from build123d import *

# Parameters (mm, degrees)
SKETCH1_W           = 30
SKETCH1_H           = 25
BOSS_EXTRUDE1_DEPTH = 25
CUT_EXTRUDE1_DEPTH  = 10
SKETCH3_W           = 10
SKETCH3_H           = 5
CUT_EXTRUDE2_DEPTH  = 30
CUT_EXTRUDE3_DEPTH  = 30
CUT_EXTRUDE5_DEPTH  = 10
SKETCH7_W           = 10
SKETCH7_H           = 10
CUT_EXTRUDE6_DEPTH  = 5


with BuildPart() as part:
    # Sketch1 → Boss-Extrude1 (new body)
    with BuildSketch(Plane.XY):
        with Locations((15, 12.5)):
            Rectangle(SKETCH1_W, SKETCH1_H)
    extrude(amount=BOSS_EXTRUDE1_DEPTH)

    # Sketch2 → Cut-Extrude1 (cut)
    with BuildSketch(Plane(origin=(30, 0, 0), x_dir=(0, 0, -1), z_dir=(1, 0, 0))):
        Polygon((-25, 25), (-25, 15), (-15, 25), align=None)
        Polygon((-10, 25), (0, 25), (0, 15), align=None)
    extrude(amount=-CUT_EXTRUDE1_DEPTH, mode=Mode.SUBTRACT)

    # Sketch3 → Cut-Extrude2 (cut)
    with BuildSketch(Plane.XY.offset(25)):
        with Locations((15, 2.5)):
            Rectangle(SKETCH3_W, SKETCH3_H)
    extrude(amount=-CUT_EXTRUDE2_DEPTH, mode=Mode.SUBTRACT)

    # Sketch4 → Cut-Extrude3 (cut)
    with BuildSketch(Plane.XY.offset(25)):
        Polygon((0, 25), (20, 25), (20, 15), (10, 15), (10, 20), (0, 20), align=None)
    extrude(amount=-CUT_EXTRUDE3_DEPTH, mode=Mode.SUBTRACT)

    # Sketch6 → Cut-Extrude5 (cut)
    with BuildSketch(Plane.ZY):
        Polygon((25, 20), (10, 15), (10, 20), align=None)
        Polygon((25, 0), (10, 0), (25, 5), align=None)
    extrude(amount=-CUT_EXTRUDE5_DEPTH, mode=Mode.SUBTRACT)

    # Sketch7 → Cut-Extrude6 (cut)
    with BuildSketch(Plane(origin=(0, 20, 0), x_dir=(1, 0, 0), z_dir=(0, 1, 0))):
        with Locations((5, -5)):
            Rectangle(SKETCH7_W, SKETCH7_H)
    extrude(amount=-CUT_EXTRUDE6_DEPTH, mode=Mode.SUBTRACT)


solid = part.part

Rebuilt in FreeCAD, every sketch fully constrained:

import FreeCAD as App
import Part
import Sketcher

V = App.Vector


def add_polygon(sketch, points):
    """Adds a closed chain of lines whose ends are joined by coincident constraints."""
    first, n = sketch.GeometryCount, len(points)
    for a, b in zip(points, points[1:] + points[:1]):
        sketch.addGeometry(Part.LineSegment(App.Vector(*a, 0), App.Vector(*b, 0)), False)
    for i in range(n):
        sketch.addConstraint(Sketcher.Constraint("Coincident", first + i, 2, first + (i + 1) % n, 1))

doc = App.newDocument("Part")
params = doc.addObject("Spreadsheet::Sheet", "Params")
for row, (alias, value) in enumerate([
    ("sketch1_width", "30 mm"),
    ("sketch1_height", "25 mm"),
    ("pad1_length", "25 mm"),
    ("sketch2_width", "10 mm"),
    ("pocket1_length", "10 mm"),
    ("sketch3_width", "10 mm"),
    ("sketch3_height", "5 mm"),
    ("pocket2_length", "30 mm"),
    ("sketch4_width", "20 mm"),
    ("pocket3_length", "30 mm"),
    ("sketch5_width", "5 mm"),
    ("sketch5_height", "15 mm"),
    ("pocket4_length", "10 mm"),
    ("sketch6_width", "10 mm"),
    ("pocket5_length", "5 mm"),
], start=1):
    params.set(f"A{row}", alias)
    params.set(f"B{row}", "=" + value)
    params.setAlias(f"B{row}", alias)

body = doc.addObject("PartDesign::Body", "Body")

# Sketch on XY plane
sketch1 = body.newObject("Sketcher::SketchObject", "Sketch")
sketch1.AttachmentSupport = (doc.getObject("XY_Plane"), [""])
sketch1.MapMode = "FlatFace"
add_polygon(sketch1, [(0, 25), (0, 0), (30, 0), (30, 25)])  # lines 0-3
sketch1.addConstraint([
    Sketcher.Constraint("Vertical", 0),
    Sketcher.Constraint("Horizontal", 1),
    Sketcher.Constraint("Vertical", 2),
    Sketcher.Constraint("Horizontal", 3),
    Sketcher.Constraint("Coincident", 0, 2, -1, 1),
    Sketcher.Constraint("DistanceX", 1, 1, 1, 2, 30.0),
    Sketcher.Constraint("DistanceY", 0, 2, 0, 1, 25.0),
])
sketch1.setExpression("Constraints[9]", "Params.sketch1_width")
sketch1.setExpression("Constraints[10]", "Params.sketch1_height")
pad1 = body.newObject("PartDesign::Pad", "Pad")
pad1.Profile = sketch1
pad1.setExpression("Length", "Params.pad1_length")

# Sketch on YZ plane
sketch2 = body.newObject("Sketcher::SketchObject", "Sketch001")
sketch2.AttachmentSupport = (doc.getObject("YZ_Plane"), [""])
sketch2.MapMode = "FlatFace"
sketch2.AttachmentOffset = App.Placement(V(0, 0, 30), App.Rotation())
add_polygon(sketch2, [(25, 25), (15, 25), (25, 15)])  # lines 0-2
add_polygon(sketch2, [(25, 0), (25, 10), (15, 0)])  # lines 3-5
sketch2.addConstraint([
    Sketcher.Constraint("Horizontal", 0),
    Sketcher.Constraint("Vertical", 2),
    Sketcher.Constraint("Vertical", 3),
    Sketcher.Constraint("Horizontal", 5),
    Sketcher.Constraint("PointOnObject", 4, 2, -1),
    Sketcher.Constraint("Perpendicular", 1, 4),
    Sketcher.Constraint("Vertical", 2, 2, 3, 2),
    Sketcher.Constraint("Vertical", 0, 2, 4, 2),
    Sketcher.Constraint("Equal", 5, 2),
    Sketcher.Constraint("DistanceX", 0, 2, 0, 1, 10.0),
    Sketcher.Constraint("DistanceX", -1, 1, 0, 2, 15.0),
    Sketcher.Constraint("DistanceY", -1, 1, 0, 2, 25.0),
])
sketch2.setExpression("Constraints[15]", "Params.sketch2_width")
pocket1 = body.newObject("PartDesign::Pocket", "Pocket")
pocket1.Profile = sketch2
pocket1.setExpression("Length", "Params.pocket1_length")

# Sketch on XY plane
sketch3 = body.newObject("Sketcher::SketchObject", "Sketch002")
sketch3.AttachmentSupport = (doc.getObject("XY_Plane"), [""])
sketch3.MapMode = "FlatFace"
sketch3.AttachmentOffset = App.Placement(V(0, 0, 25), App.Rotation())
add_polygon(sketch3, [(10, 5), (10, 0), (20, 0), (20, 5)])  # lines 0-3
sketch3.addConstraint([
    Sketcher.Constraint("Vertical", 0),
    Sketcher.Constraint("Horizontal", 1),
    Sketcher.Constraint("Vertical", 2),
    Sketcher.Constraint("Horizontal", 3),
    Sketcher.Constraint("PointOnObject", 0, 2, -1),
    Sketcher.Constraint("DistanceX", 1, 1, 1, 2, 10.0),
    Sketcher.Constraint("DistanceY", 0, 2, 0, 1, 5.0),
    Sketcher.Constraint("DistanceX", -1, 1, 0, 2, 10.0),
])
sketch3.setExpression("Constraints[9]", "Params.sketch3_width")
sketch3.setExpression("Constraints[10]", "Params.sketch3_height")
pocket2 = body.newObject("PartDesign::Pocket", "Pocket001")
pocket2.Profile = sketch3
pocket2.setExpression("Length", "Params.pocket2_length")

# Sketch on XY plane
sketch4 = body.newObject("Sketcher::SketchObject", "Sketch003")
sketch4.AttachmentSupport = (doc.getObject("XY_Plane"), [""])
sketch4.MapMode = "FlatFace"
sketch4.AttachmentOffset = App.Placement(V(0, 0, 25), App.Rotation())
add_polygon(sketch4, [(20, 25), (0, 25), (0, 20), (10, 20), (10, 15), (20, 15)])  # lines 0-5
sketch4.addConstraint([
    Sketcher.Constraint("Horizontal", 0),
    Sketcher.Constraint("Vertical", 1),
    Sketcher.Constraint("Horizontal", 2),
    Sketcher.Constraint("Vertical", 3),
    Sketcher.Constraint("Horizontal", 4),
    Sketcher.Constraint("Vertical", 5),
    Sketcher.Constraint("PointOnObject", 0, 2, -2),
    Sketcher.Constraint("Equal", 2, 4),
    Sketcher.Constraint("Equal", 1, 3),
    Sketcher.Constraint("Equal", 4, 5),
    Sketcher.Constraint("DistanceX", 0, 2, 0, 1, 20.0),
    Sketcher.Constraint("DistanceY", -1, 1, 0, 2, 25.0),
])
sketch4.setExpression("Constraints[16]", "Params.sketch4_width")
pocket3 = body.newObject("PartDesign::Pocket", "Pocket002")
pocket3.Profile = sketch4
pocket3.setExpression("Length", "Params.pocket3_length")

# Sketch on YZ plane
sketch5 = body.newObject("Sketcher::SketchObject", "Sketch004")
sketch5.AttachmentSupport = (doc.getObject("YZ_Plane"), [""])
sketch5.MapMode = "FlatFace"
add_polygon(sketch5, [(15, 10), (20, 25), (20, 10)])  # lines 0-2
add_polygon(sketch5, [(0, 10), (0, 25), (5, 25)])  # lines 3-5
sketch5.addConstraint([
    Sketcher.Constraint("Vertical", 1),
    Sketcher.Constraint("Horizontal", 2),
    Sketcher.Constraint("Vertical", 3),
    Sketcher.Constraint("Horizontal", 4),
    Sketcher.Constraint("PointOnObject", 3, 2, -2),
    Sketcher.Constraint("Parallel", 0, 5),
    Sketcher.Constraint("Horizontal", 0, 2, 3, 2),
    Sketcher.Constraint("Horizontal", 2, 2, 5, 2),
    Sketcher.Constraint("DistanceX", 2, 2, 2, 1, 5.0),
    Sketcher.Constraint("DistanceY", 1, 2, 1, 1, 15.0),
    Sketcher.Constraint("DistanceX", -1, 1, 0, 2, 20.0),
    Sketcher.Constraint("DistanceY", -1, 1, 0, 2, 25.0),
])
sketch5.setExpression("Constraints[14]", "Params.sketch5_width")
sketch5.setExpression("Constraints[15]", "Params.sketch5_height")
pocket4 = body.newObject("PartDesign::Pocket", "Pocket003")
pocket4.Profile = sketch5
pocket4.setExpression("Length", "Params.pocket4_length")
pocket4.Reversed = True

# Sketch on XZ plane
sketch6 = body.newObject("Sketcher::SketchObject", "Sketch005")
sketch6.AttachmentSupport = (doc.getObject("XZ_Plane"), [""])
sketch6.MapMode = "FlatFace"
sketch6.AttachmentOffset = App.Placement(V(0, 0, -20), App.Rotation())
add_polygon(sketch6, [(0, 0), (0, 10), (10, 10), (10, 0)])  # lines 0-3
sketch6.addConstraint([
    Sketcher.Constraint("Vertical", 0),
    Sketcher.Constraint("Horizontal", 1),
    Sketcher.Constraint("Vertical", 2),
    Sketcher.Constraint("Horizontal", 3),
    Sketcher.Constraint("Coincident", 3, 2, -1, 1),
    Sketcher.Constraint("Equal", 3, 0),
    Sketcher.Constraint("DistanceX", 1, 1, 1, 2, 10.0),
])
sketch6.setExpression("Constraints[10]", "Params.sketch6_width")
pocket5 = body.newObject("PartDesign::Pocket", "Pocket004")
pocket5.Profile = sketch6
pocket5.setExpression("Length", "Params.pocket5_length")
pocket5.Reversed = True

doc.recompute()
